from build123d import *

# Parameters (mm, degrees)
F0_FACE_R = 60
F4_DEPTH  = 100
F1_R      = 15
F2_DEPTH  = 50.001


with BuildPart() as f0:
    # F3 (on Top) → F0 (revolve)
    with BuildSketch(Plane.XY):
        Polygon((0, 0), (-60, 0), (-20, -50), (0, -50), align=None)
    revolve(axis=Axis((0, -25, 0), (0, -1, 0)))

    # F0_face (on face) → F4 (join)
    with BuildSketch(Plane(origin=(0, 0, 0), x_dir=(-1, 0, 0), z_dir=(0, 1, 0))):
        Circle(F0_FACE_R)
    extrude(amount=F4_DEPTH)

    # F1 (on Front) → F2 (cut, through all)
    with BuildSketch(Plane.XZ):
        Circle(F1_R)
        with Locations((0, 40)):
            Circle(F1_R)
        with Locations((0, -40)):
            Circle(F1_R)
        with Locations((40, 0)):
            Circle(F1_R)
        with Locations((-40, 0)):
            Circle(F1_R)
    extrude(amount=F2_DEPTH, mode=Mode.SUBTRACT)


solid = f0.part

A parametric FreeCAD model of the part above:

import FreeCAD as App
import Part
import Sketcher

V = App.Vector
Q = App.Units.Quantity


def add_polygon(sketch, points):
    """Adds a closed chain of lines whose ends are joined by coincident constraints."""
    first, n = sketch.GeometryCount, len(points)
    for a, b in zip(points, points[1:] + points[:1]):
        sketch.addGeometry(Part.LineSegment(App.Vector(*a, 0), App.Vector(*b, 0)), False)
    for i in range(n):
        sketch.addConstraint(Sketcher.Constraint("Coincident", first + i, 2, first + (i + 1) % n, 1))

doc = App.newDocument("Part")
body = doc.addObject("PartDesign::Body", "Body")

# Sketch on XY plane
sketch1 = body.newObject("Sketcher::SketchObject", "Sketch")
sketch1.AttachmentSupport = (doc.getObject("XY_Plane"), [""])
sketch1.MapMode = "FlatFace"
add_polygon(sketch1, [(0, 0), (-60, 0), (-20, -50), (0, -50)])  # lines 0-3
sketch1.addConstraint([
    Sketcher.Constraint("Horizontal", 0),
    Sketcher.Constraint("Horizontal", 2),
    Sketcher.Constraint("Vertical", 3),
    Sketcher.Constraint("Coincident", 3, 2, -1, 1),
    Sketcher.Constraint("DistanceX", 0, 2, 0, 1, Q("60 mm")),
    Sketcher.Constraint("DistanceX", 2, 1, 2, 2, Q("20 mm")),
    Sketcher.Constraint("DistanceY", 3, 1, 3, 2, Q("50 mm")),
])
revolution = body.newObject("PartDesign::Revolution", "Revolution")
revolution.Profile = sketch1
revolution.ReferenceAxis = (sketch1, ["V_Axis"])
revolution.Angle = 360

# Sketch on XZ plane
sketch2 = body.newObject("Sketcher::SketchObject", "Sketch001")
sketch2.AttachmentSupport = (doc.getObject("XZ_Plane"), [""])
sketch2.MapMode = "FlatFace"
sketch2.addGeometry(Part.Circle(V(0, 0, 0), V(0, 0, 1), 60), False)
sketch2.addConstraint([
    Sketcher.Constraint("Coincident", 0, 3, -1, 1),
    Sketcher.Constraint("Diameter", 0, Q("120 mm")),
])
pad1 = body.newObject("PartDesign::Pad", "Pad")
pad1.Profile = sketch2
pad1.Length = 100
pad1.Reversed = True

# Sketch on XZ plane
sketch3 = body.newObject("Sketcher::SketchObject", "Sketch002")
sketch3.AttachmentSupport = (doc.getObject("XZ_Plane"), [""])
sketch3.MapMode = "FlatFace"
sketch3.addGeometry([
    Part.Circle(V(0, 0, 0), V(0, 0, 1), 15),  # 0
    Part.Circle(V(0, 40, 0), V(0, 0, 1), 15),  # 1
    Part.Circle(V(0, -40, 0), V(0, 0, 1), 15),  # 2
    Part.Circle(V(40, 0, 0), V(0, 0, 1), 15),  # 3
    Part.Circle(V(-40, 0, 0), V(0, 0, 1), 15),  # 4
], False)
sketch3.addConstraint([
    Sketcher.Constraint("Coincident", 0, 3, -1, 1),
    Sketcher.Constraint("Equal", 0, 1),
    Sketcher.Constraint("Equal", 1, 2),
    Sketcher.Constraint("Equal", 2, 3),
    Sketcher.Constraint("Equal", 3, 4),
    Sketcher.Constraint("Symmetric", 1, 3, 2, 3, -1, 1),
    Sketcher.Constraint("Symmetric", 3, 3, 4, 3, -1, 1),
    Sketcher.Constraint("PointOnObject", 1, 3, -2),
    Sketcher.Constraint("PointOnObject", 3, 3, -1),
    Sketcher.Constraint("Diameter", 0, Q("30 mm")),
    Sketcher.Constraint("DistanceY", -1, 1, 1, 3, Q("40 mm")),
    Sketcher.Constraint("DistanceX", -1, 1, 3, 3, Q("40 mm")),
])
pocket1 = body.newObject("PartDesign::Pocket", "Pocket")
pocket1.Profile = sketch3
pocket1.Type = "ThroughAll"
pocket1.Reversed = True

doc.recompute()
